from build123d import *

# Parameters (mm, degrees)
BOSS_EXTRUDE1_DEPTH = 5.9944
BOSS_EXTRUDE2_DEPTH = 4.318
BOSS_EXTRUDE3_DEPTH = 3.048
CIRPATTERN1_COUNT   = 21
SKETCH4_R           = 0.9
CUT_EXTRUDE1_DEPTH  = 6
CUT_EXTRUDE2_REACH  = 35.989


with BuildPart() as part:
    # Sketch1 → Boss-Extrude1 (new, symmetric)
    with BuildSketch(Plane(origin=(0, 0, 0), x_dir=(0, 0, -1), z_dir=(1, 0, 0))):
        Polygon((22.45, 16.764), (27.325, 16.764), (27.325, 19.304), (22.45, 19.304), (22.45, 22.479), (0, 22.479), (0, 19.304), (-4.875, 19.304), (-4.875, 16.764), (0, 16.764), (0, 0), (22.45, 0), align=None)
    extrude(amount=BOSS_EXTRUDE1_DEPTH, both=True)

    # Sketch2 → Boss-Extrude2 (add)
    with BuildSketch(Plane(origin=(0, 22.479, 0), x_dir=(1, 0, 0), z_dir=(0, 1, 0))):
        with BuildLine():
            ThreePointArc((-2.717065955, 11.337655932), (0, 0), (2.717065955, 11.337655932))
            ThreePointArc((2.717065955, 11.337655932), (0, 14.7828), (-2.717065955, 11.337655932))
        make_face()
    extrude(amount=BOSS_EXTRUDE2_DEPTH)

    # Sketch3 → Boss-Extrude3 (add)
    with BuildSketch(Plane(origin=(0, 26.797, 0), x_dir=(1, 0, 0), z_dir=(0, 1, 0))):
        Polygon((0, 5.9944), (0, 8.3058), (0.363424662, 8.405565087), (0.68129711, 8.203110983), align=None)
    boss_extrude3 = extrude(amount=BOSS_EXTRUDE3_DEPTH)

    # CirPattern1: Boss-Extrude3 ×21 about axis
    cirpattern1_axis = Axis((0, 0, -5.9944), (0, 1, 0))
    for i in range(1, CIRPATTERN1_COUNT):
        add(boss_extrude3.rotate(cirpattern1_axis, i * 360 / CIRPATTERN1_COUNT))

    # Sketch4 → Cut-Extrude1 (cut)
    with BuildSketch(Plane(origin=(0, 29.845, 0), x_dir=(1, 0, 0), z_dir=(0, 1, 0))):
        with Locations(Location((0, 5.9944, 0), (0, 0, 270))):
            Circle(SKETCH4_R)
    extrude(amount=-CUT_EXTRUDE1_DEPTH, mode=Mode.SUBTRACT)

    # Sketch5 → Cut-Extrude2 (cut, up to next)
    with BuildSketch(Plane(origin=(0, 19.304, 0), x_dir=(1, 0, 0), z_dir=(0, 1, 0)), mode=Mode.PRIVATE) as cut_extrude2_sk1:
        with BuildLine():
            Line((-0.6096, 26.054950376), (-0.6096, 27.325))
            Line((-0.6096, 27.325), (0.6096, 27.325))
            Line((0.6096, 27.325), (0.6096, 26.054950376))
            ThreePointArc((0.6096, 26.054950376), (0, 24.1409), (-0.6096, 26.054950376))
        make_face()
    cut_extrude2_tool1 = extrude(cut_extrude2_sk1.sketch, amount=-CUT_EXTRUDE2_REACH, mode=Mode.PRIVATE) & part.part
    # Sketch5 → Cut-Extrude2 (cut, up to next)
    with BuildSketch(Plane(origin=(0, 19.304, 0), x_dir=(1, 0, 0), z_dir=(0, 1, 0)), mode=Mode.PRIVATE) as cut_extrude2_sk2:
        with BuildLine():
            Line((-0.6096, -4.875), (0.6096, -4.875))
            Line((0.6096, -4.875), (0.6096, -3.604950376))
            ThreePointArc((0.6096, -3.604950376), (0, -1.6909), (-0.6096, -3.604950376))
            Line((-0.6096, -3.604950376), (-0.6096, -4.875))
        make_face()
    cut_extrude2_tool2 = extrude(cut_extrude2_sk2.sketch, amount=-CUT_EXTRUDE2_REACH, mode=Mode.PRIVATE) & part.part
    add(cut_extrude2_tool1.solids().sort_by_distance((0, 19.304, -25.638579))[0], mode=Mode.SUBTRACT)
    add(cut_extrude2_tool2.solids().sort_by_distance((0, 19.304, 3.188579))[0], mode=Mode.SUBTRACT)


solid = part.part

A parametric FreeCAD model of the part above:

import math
import FreeCAD as App
import Part
import Sketcher

V = App.Vector
Q = App.Units.Quantity

doc = App.newDocument("Part")
params = doc.addObject("Spreadsheet::Sheet", "Params")
for row, (alias, value) in enumerate([
    ("sketch1_width", "0.1 in"),
    ("sketch1_width2", "0.66 in"),
    ("sketch1_width3", "0.125 in"),
    ("pad1_length", "0.472 in"),
    ("sketch2_radius", "0.11 in"),
    ("sketch2_radius2", "0.236 in"),
    ("pad2_length", "0.17 in"),
    ("sketch3_height", "0.091 in"),
    ("sketch3_length", "0.091 in"),
    ("pad3_length", "0.12 in"),
    ("pocket1_length", "6 mm"),
    ("sketch5_width", "0.048 in"),
    ("sketch6_width", "0.048 in"),
], start=1):
    params.set(f"A{row}", alias)
    params.set(f"B{row}", "=" + value)
    params.setAlias(f"B{row}", alias)

body = doc.addObject("PartDesign::Body", "Body")

# Sketch on YZ plane
sketch1 = body.newObject("Sketcher::SketchObject", "Sketch")
sketch1.AttachmentSupport = (doc.getObject("YZ_Plane"), [""])
sketch1.MapMode = "FlatFace"
sketch1.addGeometry([
    Part.LineSegment(V(16.8, -22.4, 0), V(16.8, -27.3, 0)),  # 0
    Part.LineSegment(V(16.8, -27.3, 0), V(19.3, -27.3, 0)),  # 1
    Part.LineSegment(V(19.3, -27.3, 0), V(19.3, -22.4, 0)),  # 2
    Part.LineSegment(V(19.3, -22.4, 0), V(22.5, -22.4, 0)),  # 3
    Part.LineSegment(V(22.5, -22.4, 0), V(22.5, 0, 0)),  # 4
    Part.LineSegment(V(22.5, 0, 0), V(19.3, 0, 0)),  # 5
    Part.LineSegment(V(19.3, 0, 0), V(19.3, 4.9, 0)),  # 6
    Part.LineSegment(V(19.3, 4.9, 0), V(16.8, 4.9, 0)),  # 7
    Part.LineSegment(V(16.8, 4.9, 0), V(16.8, 0, 0)),  # 8
    Part.LineSegment(V(16.8, 0, 0), V(0, 0, 0)),  # 9
    Part.LineSegment(V(0, 0, 0), V(0, -22.4, 0)),  # 10
    Part.LineSegment(V(0, -22.4, 0), V(16.8, -22.4, 0)),  # 11
], False)
sketch1.addConstraint([
    Sketcher.Constraint("Coincident", 0, 2, 1, 1),
    Sketcher.Constraint("Coincident", 1, 2, 2, 1),
    Sketcher.Constraint("Coincident", 2, 2, 3, 1),
    Sketcher.Constraint("Coincident", 3, 2, 4, 1),
    Sketcher.Constraint("Coincident", 4, 2, 5, 1),
    Sketcher.Constraint("Coincident", 5, 2, 6, 1),
    Sketcher.Constraint("Coincident", 6, 2, 7, 1),
    Sketcher.Constraint("Coincident", 7, 2, 8, 1),
    Sketcher.Constraint("Coincident", 8, 2, 9, 1),
    Sketcher.Constraint("Coincident", 9, 2, 10, 1),
    Sketcher.Constraint("Coincident", 10, 2, 11, 1),
    Sketcher.Constraint("Coincident", 11, 2, 0, 1),
    Sketcher.Constraint("Vertical", 0),
    Sketcher.Constraint("Horizontal", 1),
    Sketcher.Constraint("Vertical", 2),
    Sketcher.Constraint("Horizontal", 3),
    Sketcher.Constraint("Vertical", 4),
    Sketcher.Constraint("Horizontal", 5),
    Sketcher.Constraint("Vertical", 6),
    Sketcher.Constraint("Horizontal", 7),
    Sketcher.Constraint("Vertical", 8),
    Sketcher.Constraint("Horizontal", 9),
    Sketcher.Constraint("Vertical", 10),
    Sketcher.Constraint("Horizontal", 11),
    Sketcher.Constraint("Coincident", 9, 2, -1, 1),
    Sketcher.Constraint("PointOnObject", 4, 2, -1),
    Sketcher.Constraint("Horizontal", 3, 2, 10, 2),
    Sketcher.Constraint("Vertical", 2, 2, 5, 2),
    Sketcher.Constraint("Vertical", 0, 2, 7, 2),
    Sketcher.Constraint("Equal", 2, 6),
    Sketcher.Constraint("DistanceX", 1, 1, 1, 2, Q("0.1 in")),
    Sketcher.Constraint("DistanceX", 9, 2, 9, 1, Q("0.66 in")),
    Sketcher.Constraint("DistanceX", 3, 1, 3, 2, Q("0.125 in")),
    Sketcher.Constraint("DistanceY", 0, 2, 0, 1, Q("4.875 mm")),
    Sketcher.Constraint("DistanceY", 4, 1, 4, 2, Q("22.45 mm")),
])
sketch1.setExpression("Constraints[30]", "Params.sketch1_width")
sketch1.setExpression("Constraints[31]", "Params.sketch1_width2")
sketch1.setExpression("Constraints[32]", "Params.sketch1_width3")
pad1 = body.newObject("PartDesign::Pad", "Pad")
pad1.Profile = sketch1
pad1.setExpression("Length", "Params.pad1_length")
pad1.Midplane = True

# Sketch on XZ plane
sketch2 = body.newObject("Sketcher::SketchObject", "Sketch001")
sketch2.AttachmentSupport = (doc.getObject("XZ_Plane"), [""])
sketch2.MapMode = "FlatFace"
sketch2.AttachmentOffset = App.Placement(V(0, 0, -0.885 * 25.4), App.Rotation())
sketch2.addGeometry([
    Part.ArcOfCircle(Part.Circle(V(0, -6, 0), V(0, 0, 1), 6), math.radians(-63), math.radians(243)),
    Part.ArcOfCircle(Part.Circle(V(0, -12, 0), V(0, 0, 1), 2.8), math.radians(167), math.radians(373)),
], False)
sketch2.addConstraint([
    Sketcher.Constraint("Coincident", 0, 1, 1, 2),
    Sketcher.Constraint("Coincident", 1, 1, 0, 2),
    Sketcher.Constraint("Symmetric", 0, 1, 1, 1, -2),
    Sketcher.Constraint("Radius", 1, Q("0.11 in")),
    Sketcher.Constraint("Radius", 0, Q("0.236 in")),
    Sketcher.Constraint("DistanceY", 0, 3, -1, 1, Q("0.236 in")),
    Sketcher.Constraint("DistanceY", 1, 3, -1, 1, Q("0.472 in")),
])
sketch2.setExpression("Constraints[3]", "Params.sketch2_radius")
sketch2.setExpression("Constraints[4]", "Params.sketch2_radius2")
pad2 = body.newObject("PartDesign::Pad", "Pad001")
pad2.Profile = sketch2
pad2.setExpression("Length", "Params.pad2_length")
pad2.Reversed = True

# Sketch on XZ plane
sketch3 = body.newObject("Sketcher::SketchObject", "Sketch002")
sketch3.AttachmentSupport = (doc.getObject("XZ_Plane"), [""])
sketch3.MapMode = "FlatFace"
sketch3.AttachmentOffset = App.Placement(V(0, 0, -1.055 * 25.4), App.Rotation())
sketch3.addGeometry([
    Part.LineSegment(V(0, -8.31, 0), V(0, -5.99, 0)),
    Part.LineSegment(V(0, -5.99, 0), V(0.68, -8.2, 0)),
    Part.LineSegment(V(0.68, -8.2, 0), V(0.36, -8.41, 0)),
    Part.LineSegment(V(0.36, -8.41, 0), V(0, -8.31, 0)),
], False)
sketch3.addConstraint([
    Sketcher.Constraint("Coincident", 0, 2, 1, 1),
    Sketcher.Constraint("Coincident", 1, 2, 2, 1),
    Sketcher.Constraint("Coincident", 2, 2, 3, 1),
    Sketcher.Constraint("Coincident", 3, 2, 0, 1),
    Sketcher.Constraint("Vertical", 0),
    Sketcher.Constraint("PointOnObject", 0, 2, -2),
    Sketcher.Constraint("Equal", 2, 3),
    Sketcher.Constraint("DistanceY", 0, 1, 0, 2, Q("0.091 in")),
    Sketcher.Constraint("Distance", 1, Q("0.091 in")),
    Sketcher.Constraint("DistanceY", 0, 2, -1, 1, Q("0.236 in")),
    Sketcher.Constraint("Distance", 2, Q("0.376869 mm")),
    Sketcher.Constraint("DistanceY", 1, 2, -1, 1, Q("8.203111 mm")),
])
sketch3.setExpression("Constraints[7]", "Params.sketch3_height")
sketch3.setExpression("Constraints[8]", "Params.sketch3_length")
pad3 = body.newObject("PartDesign::Pad", "Pad002")
pad3.Profile = sketch3
pad3.setExpression("Length", "Params.pad3_length")
pad3.Reversed = True
doc.recompute()

datumline = body.newObject("PartDesign::Line", "DatumLine")
datumline.Placement = App.Placement(V(0, 0, -5.9944), App.Rotation(V(0, 0, 1), V(0, 1, 0)))
polarpattern = body.newObject("PartDesign::PolarPattern", "PolarPattern")
polarpattern.Originals = [pad3]
polarpattern.Axis = (datumline, [""])
polarpattern.Angle = 360
polarpattern.Occurrences = 21
body.Tip = polarpattern

# Sketch on XZ plane
sketch4 = body.newObject("Sketcher::SketchObject", "Sketch003")
sketch4.AttachmentSupport = (doc.getObject("XZ_Plane"), [""])
sketch4.MapMode = "FlatFace"
sketch4.AttachmentOffset = App.Placement(V(0, 0, -1.175 * 25.4), App.Rotation())
sketch4.addGeometry(Part.Circle(V(0, -6, 0), V(0, 0, 1), 0.9), False)
sketch4.addConstraint([
    Sketcher.Constraint("PointOnObject", 0, 3, -2),
    Sketcher.Constraint("Diameter", 0, Q("1.8 mm")),
    Sketcher.Constraint("DistanceY", 0, 3, -1, 1, Q("0.236 in")),
])
pocket1 = body.newObject("PartDesign::Pocket", "Pocket")
pocket1.Profile = sketch4
pocket1.setExpression("Length", "Params.pocket1_length")
pocket1.Reversed = True

# Sketch on XZ plane
sketch5 = body.newObject("Sketcher::SketchObject", "Sketch004")
sketch5.AttachmentSupport = (doc.getObject("XZ_Plane"), [""])
sketch5.MapMode = "FlatFace"
sketch5.AttachmentOffset = App.Placement(V(0, 0, -0.76 * 25.4), App.Rotation())
sketch5.addGeometry([
    Part.LineSegment(V(-0.6, -27.3, 0), V(-0.6, -26.1, 0)),
    Part.ArcOfCircle(Part.Circle(V(0, -25.2, 0), V(0, 0, 1), 1.1), math.radians(-55), math.radians(235)),
    Part.LineSegment(V(0.6, -26.1, 0), V(0.6, -27.3, 0)),
    Part.LineSegment(V(0.6, -27.3, 0), V(-0.6, -27.3, 0)),
], False)
sketch5.addConstraint([
    Sketcher.Constraint("Coincident", 0, 2, 1, 2),
    Sketcher.Constraint("Coincident", 1, 1, 2, 1),
    Sketcher.Constraint("Coincident", 2, 2, 3, 1),
    Sketcher.Constraint("Coincident", 3, 2, 0, 1),
    Sketcher.Constraint("Vertical", 0),
    Sketcher.Constraint("Vertical", 2),
    Sketcher.Constraint("Horizontal", 3),
    Sketcher.Constraint("Symmetric", 0, 2, 1, 1, -2),
    Sketcher.Constraint("Radius", 1, Q("0.0415 in")),
    Sketcher.Constraint("DistanceX", 3, 2, 3, 1, Q("0.048 in")),
    Sketcher.Constraint("DistanceY", 0, 1, 0, 2, Q("1.27005 mm")),
    Sketcher.Constraint("DistanceY", 1, 3, -1, 1, Q("25.195 mm")),
])
sketch5.setExpression("Constraints[9]", "Params.sketch5_width")
pocket2 = body.newObject("PartDesign::Pocket", "Pocket001")
pocket2.Profile = sketch5
pocket2.Type = "UpToFirst"
pocket2.Reversed = True

# Sketch on XZ plane
sketch6 = body.newObject("Sketcher::SketchObject", "Sketch005")
sketch6.AttachmentSupport = (doc.getObject("XZ_Plane"), [""])
sketch6.MapMode = "FlatFace"
sketch6.AttachmentOffset = App.Placement(V(0, 0, -0.76 * 25.4), App.Rotation())
sketch6.addGeometry([
    Part.LineSegment(V(-0.6, 4.9, 0), V(0.6, 4.9, 0)),
    Part.LineSegment(V(0.6, 4.9, 0), V(0.6, 3.6, 0)),
    Part.ArcOfCircle(Part.Circle(V(0, 2.7, 0), V(0, 0, 1), 1.1), math.radians(125), math.radians(415)),
    Part.LineSegment(V(-0.6, 3.6, 0), V(-0.6, 4.9, 0)),
], False)
sketch6.addConstraint([
    Sketcher.Constraint("Coincident", 0, 2, 1, 1),
    Sketcher.Constraint("Coincident", 1, 2, 2, 2),
    Sketcher.Constraint("Coincident", 2, 1, 3, 1),
    Sketcher.Constraint("Coincident", 3, 2, 0, 1),
    Sketcher.Constraint("Horizontal", 0),
    Sketcher.Constraint("Vertical", 1),
    Sketcher.Constraint("Vertical", 3),
    Sketcher.Constraint("Symmetric", 1, 2, 2, 1, -2),
    Sketcher.Constraint("Radius", 2, Q("0.0415 in")),
    Sketcher.Constraint("DistanceX", 0, 1, 0, 2, Q("0.048 in")),
    Sketcher.Constraint("DistanceY", 1, 2, 1, 1, Q("1.27005 mm")),
    Sketcher.Constraint("DistanceY", -1, 1, 2, 3, Q("2.745 mm")),
])
sketch6.setExpression("Constraints[9]", "Params.sketch6_width")
pocket3 = body.newObject("PartDesign::Pocket", "Pocket002")
pocket3.Profile = sketch6
pocket3.Type = "UpToFirst"
pocket3.Reversed = True

doc.recompute()
